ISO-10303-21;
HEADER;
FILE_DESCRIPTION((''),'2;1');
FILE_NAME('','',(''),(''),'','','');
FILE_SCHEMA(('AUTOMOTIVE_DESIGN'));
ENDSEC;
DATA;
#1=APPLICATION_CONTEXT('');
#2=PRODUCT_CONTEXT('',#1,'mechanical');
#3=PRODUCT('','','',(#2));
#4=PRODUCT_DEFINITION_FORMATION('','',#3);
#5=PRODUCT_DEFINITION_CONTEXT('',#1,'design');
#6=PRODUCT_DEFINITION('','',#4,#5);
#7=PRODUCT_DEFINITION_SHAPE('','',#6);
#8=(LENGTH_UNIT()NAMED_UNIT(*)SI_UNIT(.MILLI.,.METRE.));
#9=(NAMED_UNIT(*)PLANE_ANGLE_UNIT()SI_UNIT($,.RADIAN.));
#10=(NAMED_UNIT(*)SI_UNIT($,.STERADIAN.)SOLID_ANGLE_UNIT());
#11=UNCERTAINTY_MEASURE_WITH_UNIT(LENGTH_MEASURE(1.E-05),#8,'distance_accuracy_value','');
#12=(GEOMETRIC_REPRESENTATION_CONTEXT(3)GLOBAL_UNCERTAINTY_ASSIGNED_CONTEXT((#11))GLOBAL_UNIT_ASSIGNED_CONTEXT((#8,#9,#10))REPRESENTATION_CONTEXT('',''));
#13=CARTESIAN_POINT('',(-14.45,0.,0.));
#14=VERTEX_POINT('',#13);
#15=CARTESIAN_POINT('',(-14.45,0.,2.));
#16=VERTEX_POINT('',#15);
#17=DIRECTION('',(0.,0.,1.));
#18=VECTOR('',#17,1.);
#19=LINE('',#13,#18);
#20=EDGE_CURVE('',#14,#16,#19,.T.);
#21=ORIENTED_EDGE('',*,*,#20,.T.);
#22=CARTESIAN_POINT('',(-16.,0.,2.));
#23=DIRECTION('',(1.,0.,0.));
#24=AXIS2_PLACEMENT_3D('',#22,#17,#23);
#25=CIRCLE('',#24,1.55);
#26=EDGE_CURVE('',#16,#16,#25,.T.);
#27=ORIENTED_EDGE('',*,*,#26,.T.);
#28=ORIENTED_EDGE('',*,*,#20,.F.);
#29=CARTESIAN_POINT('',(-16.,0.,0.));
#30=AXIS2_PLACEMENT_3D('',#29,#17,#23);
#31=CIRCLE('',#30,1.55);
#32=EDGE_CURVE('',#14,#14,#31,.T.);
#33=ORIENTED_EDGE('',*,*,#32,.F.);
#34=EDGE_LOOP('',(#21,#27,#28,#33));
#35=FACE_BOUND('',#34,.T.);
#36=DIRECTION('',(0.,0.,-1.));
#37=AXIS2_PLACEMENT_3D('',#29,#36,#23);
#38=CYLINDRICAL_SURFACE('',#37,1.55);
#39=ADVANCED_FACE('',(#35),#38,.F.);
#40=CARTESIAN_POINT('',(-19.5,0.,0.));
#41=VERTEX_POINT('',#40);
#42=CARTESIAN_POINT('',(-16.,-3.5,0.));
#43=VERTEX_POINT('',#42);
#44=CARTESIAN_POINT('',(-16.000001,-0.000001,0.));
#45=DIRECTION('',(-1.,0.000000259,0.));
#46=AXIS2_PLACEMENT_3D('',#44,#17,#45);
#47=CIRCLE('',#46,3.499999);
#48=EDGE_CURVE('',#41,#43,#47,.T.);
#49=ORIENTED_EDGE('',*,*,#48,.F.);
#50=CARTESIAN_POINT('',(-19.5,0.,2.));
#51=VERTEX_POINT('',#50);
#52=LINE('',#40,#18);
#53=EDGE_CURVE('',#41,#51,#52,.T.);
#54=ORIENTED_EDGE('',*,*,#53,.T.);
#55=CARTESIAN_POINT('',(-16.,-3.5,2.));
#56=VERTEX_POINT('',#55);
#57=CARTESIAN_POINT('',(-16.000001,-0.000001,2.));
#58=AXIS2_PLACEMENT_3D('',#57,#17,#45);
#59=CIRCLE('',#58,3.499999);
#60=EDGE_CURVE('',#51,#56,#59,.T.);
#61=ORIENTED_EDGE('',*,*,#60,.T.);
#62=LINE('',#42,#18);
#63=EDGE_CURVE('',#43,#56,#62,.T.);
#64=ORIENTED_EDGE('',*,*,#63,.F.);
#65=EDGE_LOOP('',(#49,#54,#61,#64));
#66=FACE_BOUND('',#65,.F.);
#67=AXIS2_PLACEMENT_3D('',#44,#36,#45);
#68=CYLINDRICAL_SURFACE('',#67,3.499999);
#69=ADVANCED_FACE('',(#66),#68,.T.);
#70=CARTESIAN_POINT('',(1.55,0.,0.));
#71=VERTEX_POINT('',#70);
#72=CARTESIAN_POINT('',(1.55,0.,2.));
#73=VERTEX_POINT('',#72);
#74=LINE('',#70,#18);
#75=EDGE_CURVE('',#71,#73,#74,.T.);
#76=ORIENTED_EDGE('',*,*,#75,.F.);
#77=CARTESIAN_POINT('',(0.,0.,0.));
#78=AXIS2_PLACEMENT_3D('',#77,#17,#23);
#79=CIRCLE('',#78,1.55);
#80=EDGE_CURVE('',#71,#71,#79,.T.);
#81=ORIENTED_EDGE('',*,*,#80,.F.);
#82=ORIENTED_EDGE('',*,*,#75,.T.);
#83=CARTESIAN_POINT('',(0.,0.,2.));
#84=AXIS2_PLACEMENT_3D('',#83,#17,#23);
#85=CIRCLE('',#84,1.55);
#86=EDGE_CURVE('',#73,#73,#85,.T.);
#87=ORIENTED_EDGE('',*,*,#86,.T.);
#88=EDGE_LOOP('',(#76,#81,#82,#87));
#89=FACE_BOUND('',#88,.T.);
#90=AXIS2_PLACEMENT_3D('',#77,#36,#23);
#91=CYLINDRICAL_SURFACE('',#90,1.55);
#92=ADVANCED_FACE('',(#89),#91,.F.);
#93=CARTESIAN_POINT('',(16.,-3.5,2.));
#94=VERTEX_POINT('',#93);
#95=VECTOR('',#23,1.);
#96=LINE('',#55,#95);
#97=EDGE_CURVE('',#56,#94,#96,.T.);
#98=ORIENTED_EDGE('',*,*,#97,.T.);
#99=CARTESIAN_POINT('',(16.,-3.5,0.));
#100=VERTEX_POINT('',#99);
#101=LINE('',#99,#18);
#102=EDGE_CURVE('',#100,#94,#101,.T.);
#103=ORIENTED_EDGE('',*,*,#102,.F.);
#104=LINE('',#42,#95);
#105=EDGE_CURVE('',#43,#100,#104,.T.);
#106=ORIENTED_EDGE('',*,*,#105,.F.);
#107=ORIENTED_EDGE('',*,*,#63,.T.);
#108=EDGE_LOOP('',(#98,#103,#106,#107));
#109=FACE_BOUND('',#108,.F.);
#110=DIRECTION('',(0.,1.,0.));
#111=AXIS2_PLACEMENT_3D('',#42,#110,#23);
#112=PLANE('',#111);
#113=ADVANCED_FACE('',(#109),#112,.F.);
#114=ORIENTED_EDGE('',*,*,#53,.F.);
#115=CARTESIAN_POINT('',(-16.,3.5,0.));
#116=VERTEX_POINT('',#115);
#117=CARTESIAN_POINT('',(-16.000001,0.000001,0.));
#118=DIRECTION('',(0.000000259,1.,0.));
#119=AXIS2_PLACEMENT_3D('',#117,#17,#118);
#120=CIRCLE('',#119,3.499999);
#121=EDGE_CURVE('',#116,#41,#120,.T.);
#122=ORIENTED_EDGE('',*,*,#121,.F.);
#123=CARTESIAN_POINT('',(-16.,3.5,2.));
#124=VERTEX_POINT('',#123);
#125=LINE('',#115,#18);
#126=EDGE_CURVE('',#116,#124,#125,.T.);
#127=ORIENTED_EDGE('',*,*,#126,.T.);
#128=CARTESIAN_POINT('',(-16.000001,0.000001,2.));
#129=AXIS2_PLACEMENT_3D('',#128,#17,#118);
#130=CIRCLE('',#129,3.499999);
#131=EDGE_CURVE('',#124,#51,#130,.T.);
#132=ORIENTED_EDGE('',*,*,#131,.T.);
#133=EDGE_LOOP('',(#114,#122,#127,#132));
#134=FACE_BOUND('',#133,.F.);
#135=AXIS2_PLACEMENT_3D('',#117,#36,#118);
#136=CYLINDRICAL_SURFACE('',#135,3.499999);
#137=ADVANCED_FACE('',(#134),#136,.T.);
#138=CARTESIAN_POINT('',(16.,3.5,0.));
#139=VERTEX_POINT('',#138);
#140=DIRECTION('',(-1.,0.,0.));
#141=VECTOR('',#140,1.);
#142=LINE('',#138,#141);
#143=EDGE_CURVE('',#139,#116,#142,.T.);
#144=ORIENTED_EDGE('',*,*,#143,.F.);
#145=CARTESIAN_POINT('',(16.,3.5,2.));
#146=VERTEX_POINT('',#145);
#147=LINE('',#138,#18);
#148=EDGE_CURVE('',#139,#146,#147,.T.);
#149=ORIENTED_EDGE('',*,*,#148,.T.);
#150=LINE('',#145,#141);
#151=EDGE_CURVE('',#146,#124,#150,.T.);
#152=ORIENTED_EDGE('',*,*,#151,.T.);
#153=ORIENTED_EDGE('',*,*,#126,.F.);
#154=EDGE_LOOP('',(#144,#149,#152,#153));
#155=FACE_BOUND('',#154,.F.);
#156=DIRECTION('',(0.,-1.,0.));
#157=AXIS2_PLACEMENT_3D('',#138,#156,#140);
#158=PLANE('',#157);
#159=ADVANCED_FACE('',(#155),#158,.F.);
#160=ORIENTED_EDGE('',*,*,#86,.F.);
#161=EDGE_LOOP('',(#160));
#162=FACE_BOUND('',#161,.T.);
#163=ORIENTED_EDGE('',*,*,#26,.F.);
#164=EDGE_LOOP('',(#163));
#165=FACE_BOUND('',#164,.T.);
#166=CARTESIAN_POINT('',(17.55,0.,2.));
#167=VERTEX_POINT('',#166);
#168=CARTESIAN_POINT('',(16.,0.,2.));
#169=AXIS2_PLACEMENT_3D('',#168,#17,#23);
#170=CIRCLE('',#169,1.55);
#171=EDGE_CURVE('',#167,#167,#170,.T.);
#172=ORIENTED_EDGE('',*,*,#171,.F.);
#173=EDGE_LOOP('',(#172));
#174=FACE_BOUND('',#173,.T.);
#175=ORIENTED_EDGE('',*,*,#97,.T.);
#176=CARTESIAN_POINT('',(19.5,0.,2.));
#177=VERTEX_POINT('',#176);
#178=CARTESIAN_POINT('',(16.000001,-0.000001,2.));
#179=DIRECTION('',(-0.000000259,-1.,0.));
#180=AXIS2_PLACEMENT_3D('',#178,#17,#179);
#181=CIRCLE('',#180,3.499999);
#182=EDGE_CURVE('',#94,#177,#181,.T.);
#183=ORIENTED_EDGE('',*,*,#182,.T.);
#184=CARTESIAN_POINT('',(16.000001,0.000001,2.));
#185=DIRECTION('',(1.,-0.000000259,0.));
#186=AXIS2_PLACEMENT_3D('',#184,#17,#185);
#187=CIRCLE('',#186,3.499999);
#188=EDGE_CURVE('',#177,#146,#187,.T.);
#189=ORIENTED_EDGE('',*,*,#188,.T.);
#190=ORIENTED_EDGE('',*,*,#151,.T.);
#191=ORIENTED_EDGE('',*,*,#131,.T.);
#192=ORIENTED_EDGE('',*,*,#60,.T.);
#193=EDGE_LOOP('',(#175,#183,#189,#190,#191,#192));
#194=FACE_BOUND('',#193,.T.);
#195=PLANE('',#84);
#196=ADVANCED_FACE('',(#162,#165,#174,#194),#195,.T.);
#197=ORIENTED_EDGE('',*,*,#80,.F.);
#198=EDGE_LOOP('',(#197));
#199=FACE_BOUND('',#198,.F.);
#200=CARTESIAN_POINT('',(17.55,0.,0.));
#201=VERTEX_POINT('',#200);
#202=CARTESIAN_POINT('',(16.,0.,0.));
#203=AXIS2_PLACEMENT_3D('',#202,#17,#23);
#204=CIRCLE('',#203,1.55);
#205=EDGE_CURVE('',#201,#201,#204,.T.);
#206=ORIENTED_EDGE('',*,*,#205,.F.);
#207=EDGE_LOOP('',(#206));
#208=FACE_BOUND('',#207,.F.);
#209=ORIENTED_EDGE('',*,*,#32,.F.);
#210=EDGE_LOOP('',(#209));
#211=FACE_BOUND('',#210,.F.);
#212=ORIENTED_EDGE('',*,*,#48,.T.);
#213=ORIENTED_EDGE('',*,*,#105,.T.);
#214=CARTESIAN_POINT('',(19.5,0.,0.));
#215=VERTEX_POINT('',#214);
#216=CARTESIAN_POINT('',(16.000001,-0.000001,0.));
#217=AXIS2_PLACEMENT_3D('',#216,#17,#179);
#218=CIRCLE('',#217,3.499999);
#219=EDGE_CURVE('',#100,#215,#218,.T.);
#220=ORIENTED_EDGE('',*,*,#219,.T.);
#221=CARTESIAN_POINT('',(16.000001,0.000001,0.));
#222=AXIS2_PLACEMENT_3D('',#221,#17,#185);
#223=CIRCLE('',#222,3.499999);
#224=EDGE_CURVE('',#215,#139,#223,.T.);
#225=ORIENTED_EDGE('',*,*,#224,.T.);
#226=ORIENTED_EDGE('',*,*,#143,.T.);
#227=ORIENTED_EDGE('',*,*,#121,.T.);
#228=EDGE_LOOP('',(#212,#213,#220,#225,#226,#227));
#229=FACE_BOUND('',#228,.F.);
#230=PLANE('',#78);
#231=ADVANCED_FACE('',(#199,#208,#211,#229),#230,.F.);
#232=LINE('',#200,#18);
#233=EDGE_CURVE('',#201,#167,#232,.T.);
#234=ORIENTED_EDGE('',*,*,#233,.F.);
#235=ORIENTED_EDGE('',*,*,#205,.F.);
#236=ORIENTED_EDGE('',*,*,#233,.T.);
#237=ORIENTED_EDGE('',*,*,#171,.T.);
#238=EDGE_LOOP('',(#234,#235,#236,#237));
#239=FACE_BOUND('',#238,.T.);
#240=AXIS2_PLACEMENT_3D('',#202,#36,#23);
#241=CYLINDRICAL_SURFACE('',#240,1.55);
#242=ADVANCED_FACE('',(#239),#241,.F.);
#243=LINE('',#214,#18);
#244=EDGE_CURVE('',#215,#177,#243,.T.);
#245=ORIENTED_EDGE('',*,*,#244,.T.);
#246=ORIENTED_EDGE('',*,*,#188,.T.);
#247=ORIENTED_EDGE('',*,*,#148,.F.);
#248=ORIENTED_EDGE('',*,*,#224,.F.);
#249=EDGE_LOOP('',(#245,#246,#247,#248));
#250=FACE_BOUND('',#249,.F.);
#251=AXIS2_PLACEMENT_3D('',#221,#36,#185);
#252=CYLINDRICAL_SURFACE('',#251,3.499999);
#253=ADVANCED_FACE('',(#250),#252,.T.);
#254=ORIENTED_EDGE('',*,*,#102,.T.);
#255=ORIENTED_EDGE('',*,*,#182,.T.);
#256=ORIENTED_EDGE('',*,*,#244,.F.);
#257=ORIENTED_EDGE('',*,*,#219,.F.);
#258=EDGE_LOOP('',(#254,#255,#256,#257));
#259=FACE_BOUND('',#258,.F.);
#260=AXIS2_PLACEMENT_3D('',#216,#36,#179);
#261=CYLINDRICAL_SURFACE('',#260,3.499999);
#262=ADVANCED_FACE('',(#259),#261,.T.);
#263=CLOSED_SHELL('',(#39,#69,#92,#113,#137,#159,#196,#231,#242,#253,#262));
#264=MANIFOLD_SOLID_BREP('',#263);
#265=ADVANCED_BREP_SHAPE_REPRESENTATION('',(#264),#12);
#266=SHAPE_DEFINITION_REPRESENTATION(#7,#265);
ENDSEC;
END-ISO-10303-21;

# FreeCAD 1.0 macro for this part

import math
import FreeCAD as App
import Part
import Sketcher
from FreeCAD import Vector

doc = App.newDocument("Part")
body = doc.addObject("PartDesign::Body", "Body")

# Sketch on XY plane
sketch1 = body.newObject("Sketcher::SketchObject", "Sketch")
sketch1.AttachmentSupport = (doc.getObject("XY_Plane"), [""])
sketch1.MapMode = "FlatFace"
sketch1.addGeometry([
    Part.LineSegment(Vector(-16, -3.5, 0), Vector(16, -3.5, 0)),  # 0
    Part.ArcOfCircle(Part.Circle(Vector(16.000001, -0.000001, 0), Vector(0, 0, 1), 3.499999), math.radians(-90.000015), math.radians(0.000015)),  # 1
    Part.ArcOfCircle(Part.Circle(Vector(16.000001, 0.000001, 0), Vector(0, 0, 1), 3.499999), math.radians(-0.000015), math.radians(90.000015)),  # 2
    Part.LineSegment(Vector(16, 3.5, 0), Vector(-16, 3.5, 0)),  # 3
    Part.ArcOfCircle(Part.Circle(Vector(-16.000001, 0.000001, 0), Vector(0, 0, 1), 3.499999), math.radians(89.999985), math.radians(180.000015)),  # 4
    Part.ArcOfCircle(Part.Circle(Vector(-16.000001, -0.000001, 0), Vector(0, 0, 1), 3.499999), math.radians(179.999985), math.radians(270.000015)),  # 5
    Part.Circle(Vector(-16, 0, 0), Vector(0, 0, 1), 1.55),  # 6
    Part.Circle(Vector(0, 0, 0), Vector(0, 0, 1), 1.55),  # 7
    Part.Circle(Vector(16, 0, 0), Vector(0, 0, 1), 1.55),  # 8
], False)
sketch1.addConstraint([
    Sketcher.Constraint("Tangent", 0, 2, 1, 1),
    Sketcher.Constraint("Tangent", 1, 2, 2, 1),
    Sketcher.Constraint("Tangent", 2, 2, 3, 1),
    Sketcher.Constraint("Tangent", 3, 2, 4, 1),
    Sketcher.Constraint("Tangent", 4, 2, 5, 1),
    Sketcher.Constraint("Tangent", 5, 2, 0, 1),
    Sketcher.Constraint("Horizontal", 0),
    Sketcher.Constraint("Horizontal", 3),
    Sketcher.Constraint("Coincident", 7, 3, -1, 1),
    Sketcher.Constraint("Coincident", 6, 3, 4, 3),
    Sketcher.Constraint("Coincident", 8, 3, 1, 3),
    Sketcher.Constraint("Equal", 1, 2),
    Sketcher.Constraint("Equal", 2, 4),
    Sketcher.Constraint("Equal", 6, 7),
    Sketcher.Constraint("Equal", 7, 8),
    Sketcher.Constraint("Symmetric", 1, 3, 4, 3, -1, 1),
    Sketcher.Constraint("PointOnObject", 1, 2, -1),
    Sketcher.Constraint("PointOnObject", 4, 2, -1),
    Sketcher.Constraint("Diameter", 6, 3.1),
    Sketcher.Constraint("Radius", 1, 3.499999),
    Sketcher.Constraint("DistanceX", 0, 1, 0, 2, 32.0),
])
pad1 = body.newObject("PartDesign::Pad", "Pad")
pad1.Profile = sketch1
pad1.Length = 2

doc.recompute()
